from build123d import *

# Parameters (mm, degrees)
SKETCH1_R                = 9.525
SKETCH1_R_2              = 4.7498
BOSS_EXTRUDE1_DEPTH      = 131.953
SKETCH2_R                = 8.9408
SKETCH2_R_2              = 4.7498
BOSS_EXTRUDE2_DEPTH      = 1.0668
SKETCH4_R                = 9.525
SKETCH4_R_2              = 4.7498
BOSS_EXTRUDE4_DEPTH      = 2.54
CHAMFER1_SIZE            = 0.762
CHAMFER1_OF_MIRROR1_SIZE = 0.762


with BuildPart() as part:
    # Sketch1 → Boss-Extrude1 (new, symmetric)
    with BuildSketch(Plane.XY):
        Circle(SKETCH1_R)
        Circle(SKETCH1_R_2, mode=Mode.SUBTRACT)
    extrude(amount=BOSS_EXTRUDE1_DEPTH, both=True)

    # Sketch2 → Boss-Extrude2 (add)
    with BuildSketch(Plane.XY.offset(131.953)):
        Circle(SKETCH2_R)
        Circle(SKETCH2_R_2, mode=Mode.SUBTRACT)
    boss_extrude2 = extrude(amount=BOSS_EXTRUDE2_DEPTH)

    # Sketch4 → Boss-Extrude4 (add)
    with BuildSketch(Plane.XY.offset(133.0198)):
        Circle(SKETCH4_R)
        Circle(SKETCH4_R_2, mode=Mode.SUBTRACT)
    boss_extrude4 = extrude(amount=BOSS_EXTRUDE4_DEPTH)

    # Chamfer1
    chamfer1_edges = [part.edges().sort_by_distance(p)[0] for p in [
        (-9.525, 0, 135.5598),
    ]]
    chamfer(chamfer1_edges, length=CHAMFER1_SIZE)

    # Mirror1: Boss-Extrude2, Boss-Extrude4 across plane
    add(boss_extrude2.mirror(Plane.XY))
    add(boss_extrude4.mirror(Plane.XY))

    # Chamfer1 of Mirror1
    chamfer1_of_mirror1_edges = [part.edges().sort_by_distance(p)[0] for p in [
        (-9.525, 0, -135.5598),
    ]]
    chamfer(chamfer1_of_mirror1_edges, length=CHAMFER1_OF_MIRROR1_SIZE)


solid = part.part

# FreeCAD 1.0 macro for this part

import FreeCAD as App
import Part
import Sketcher

V = App.Vector
Q = App.Units.Quantity


def edges_at(feature, points):
    """Names of the edges that pass closest to the given points."""
    edges = feature.Shape.Edges
    near = lambda p: min(range(len(edges)), key=lambda i: edges[i].distToShape(Part.Vertex(*p))[0])
    return sorted({f"Edge{near(p) + 1}" for p in points})

doc = App.newDocument("Part")
body = doc.addObject("PartDesign::Body", "Body")

# Sketch on XY plane
sketch1 = body.newObject("Sketcher::SketchObject", "Sketch")
sketch1.AttachmentSupport = (doc.getObject("XY_Plane"), [""])
sketch1.MapMode = "FlatFace"
sketch1.addGeometry(Part.Circle(V(0, 0, 0), V(0, 0, 1), 9.525), False)
sketch1.addGeometry(Part.Circle(V(0, 0, 0), V(0, 0, 1), 4.7498), False)
sketch1.addConstraint(Sketcher.Constraint("Coincident", 0, 3, -1, 1))
sketch1.addConstraint(Sketcher.Constraint("Coincident", 1, 3, -1, 1))
sketch1.addConstraint(Sketcher.Constraint("Diameter", 0, Q("0.75 in")))
sketch1.addConstraint(Sketcher.Constraint("Diameter", 1, Q("0.374 in")))
pad1 = body.newObject("PartDesign::Pad", "Pad")
pad1.Profile = sketch1
pad1.Length = Q("10.39 in")
pad1.Midplane = True

# Sketch on XY plane
sketch2 = body.newObject("Sketcher::SketchObject", "Sketch001")
sketch2.AttachmentSupport = (doc.getObject("XY_Plane"), [""])
sketch2.MapMode = "FlatFace"
sketch2.AttachmentOffset = App.Placement(V(0, 0, 5.195 * 25.4), App.Rotation())
sketch2.addGeometry(Part.Circle(V(0, 0, 0), V(0, 0, 1), 8.9408), False)
sketch2.addGeometry(Part.Circle(V(0, 0, 0), V(0, 0, 1), 4.7498), False)
sketch2.addConstraint(Sketcher.Constraint("Coincident", 0, 3, -1, 1))
sketch2.addConstraint(Sketcher.Constraint("Coincident", 1, 3, -1, 1))
sketch2.addConstraint(Sketcher.Constraint("Diameter", 0, Q("0.704 in")))
sketch2.addConstraint(Sketcher.Constraint("Diameter", 1, Q("0.374 in")))
pad2 = body.newObject("PartDesign::Pad", "Pad001")
pad2.Profile = sketch2
pad2.Length = Q("0.042 in")

# Sketch on XY plane
sketch3 = body.newObject("Sketcher::SketchObject", "Sketch002")
sketch3.AttachmentSupport = (doc.getObject("XY_Plane"), [""])
sketch3.MapMode = "FlatFace"
sketch3.AttachmentOffset = App.Placement(V(0, 0, 5.237 * 25.4), App.Rotation())
sketch3.addGeometry(Part.Circle(V(0, 0, 0), V(0, 0, 1), 9.525), False)
sketch3.addGeometry(Part.Circle(V(0, 0, 0), V(0, 0, 1), 4.7498), False)
sketch3.addConstraint(Sketcher.Constraint("Coincident", 0, 3, -1, 1))
sketch3.addConstraint(Sketcher.Constraint("Coincident", 1, 3, -1, 1))
sketch3.addConstraint(Sketcher.Constraint("Diameter", 0, Q("0.75 in")))
sketch3.addConstraint(Sketcher.Constraint("Diameter", 1, Q("0.374 in")))
pad3 = body.newObject("PartDesign::Pad", "Pad002")
pad3.Profile = sketch3
pad3.Length = Q("0.1 in")
doc.recompute()

chamfer = body.newObject("PartDesign::Chamfer", "Chamfer")
chamfer.Base = (pad3, edges_at(pad3, [(-9.525, 0, 135.56)]))
chamfer.Size = Q("0.03 in")
doc.recompute()

mirrored = body.newObject("PartDesign::Mirrored", "Mirrored")
mirrored.Originals = [pad2, pad3]
mirrored.MirrorPlane = (doc.getObject("XY_Plane"), [""])
body.Tip = mirrored
doc.recompute()

chamfer2 = body.newObject("PartDesign::Chamfer", "Chamfer001")
chamfer2.Base = (mirrored, edges_at(mirrored, [(-9.525, 0, -135.56)]))
chamfer2.Size = Q("0.03 in")

doc.recompute()
